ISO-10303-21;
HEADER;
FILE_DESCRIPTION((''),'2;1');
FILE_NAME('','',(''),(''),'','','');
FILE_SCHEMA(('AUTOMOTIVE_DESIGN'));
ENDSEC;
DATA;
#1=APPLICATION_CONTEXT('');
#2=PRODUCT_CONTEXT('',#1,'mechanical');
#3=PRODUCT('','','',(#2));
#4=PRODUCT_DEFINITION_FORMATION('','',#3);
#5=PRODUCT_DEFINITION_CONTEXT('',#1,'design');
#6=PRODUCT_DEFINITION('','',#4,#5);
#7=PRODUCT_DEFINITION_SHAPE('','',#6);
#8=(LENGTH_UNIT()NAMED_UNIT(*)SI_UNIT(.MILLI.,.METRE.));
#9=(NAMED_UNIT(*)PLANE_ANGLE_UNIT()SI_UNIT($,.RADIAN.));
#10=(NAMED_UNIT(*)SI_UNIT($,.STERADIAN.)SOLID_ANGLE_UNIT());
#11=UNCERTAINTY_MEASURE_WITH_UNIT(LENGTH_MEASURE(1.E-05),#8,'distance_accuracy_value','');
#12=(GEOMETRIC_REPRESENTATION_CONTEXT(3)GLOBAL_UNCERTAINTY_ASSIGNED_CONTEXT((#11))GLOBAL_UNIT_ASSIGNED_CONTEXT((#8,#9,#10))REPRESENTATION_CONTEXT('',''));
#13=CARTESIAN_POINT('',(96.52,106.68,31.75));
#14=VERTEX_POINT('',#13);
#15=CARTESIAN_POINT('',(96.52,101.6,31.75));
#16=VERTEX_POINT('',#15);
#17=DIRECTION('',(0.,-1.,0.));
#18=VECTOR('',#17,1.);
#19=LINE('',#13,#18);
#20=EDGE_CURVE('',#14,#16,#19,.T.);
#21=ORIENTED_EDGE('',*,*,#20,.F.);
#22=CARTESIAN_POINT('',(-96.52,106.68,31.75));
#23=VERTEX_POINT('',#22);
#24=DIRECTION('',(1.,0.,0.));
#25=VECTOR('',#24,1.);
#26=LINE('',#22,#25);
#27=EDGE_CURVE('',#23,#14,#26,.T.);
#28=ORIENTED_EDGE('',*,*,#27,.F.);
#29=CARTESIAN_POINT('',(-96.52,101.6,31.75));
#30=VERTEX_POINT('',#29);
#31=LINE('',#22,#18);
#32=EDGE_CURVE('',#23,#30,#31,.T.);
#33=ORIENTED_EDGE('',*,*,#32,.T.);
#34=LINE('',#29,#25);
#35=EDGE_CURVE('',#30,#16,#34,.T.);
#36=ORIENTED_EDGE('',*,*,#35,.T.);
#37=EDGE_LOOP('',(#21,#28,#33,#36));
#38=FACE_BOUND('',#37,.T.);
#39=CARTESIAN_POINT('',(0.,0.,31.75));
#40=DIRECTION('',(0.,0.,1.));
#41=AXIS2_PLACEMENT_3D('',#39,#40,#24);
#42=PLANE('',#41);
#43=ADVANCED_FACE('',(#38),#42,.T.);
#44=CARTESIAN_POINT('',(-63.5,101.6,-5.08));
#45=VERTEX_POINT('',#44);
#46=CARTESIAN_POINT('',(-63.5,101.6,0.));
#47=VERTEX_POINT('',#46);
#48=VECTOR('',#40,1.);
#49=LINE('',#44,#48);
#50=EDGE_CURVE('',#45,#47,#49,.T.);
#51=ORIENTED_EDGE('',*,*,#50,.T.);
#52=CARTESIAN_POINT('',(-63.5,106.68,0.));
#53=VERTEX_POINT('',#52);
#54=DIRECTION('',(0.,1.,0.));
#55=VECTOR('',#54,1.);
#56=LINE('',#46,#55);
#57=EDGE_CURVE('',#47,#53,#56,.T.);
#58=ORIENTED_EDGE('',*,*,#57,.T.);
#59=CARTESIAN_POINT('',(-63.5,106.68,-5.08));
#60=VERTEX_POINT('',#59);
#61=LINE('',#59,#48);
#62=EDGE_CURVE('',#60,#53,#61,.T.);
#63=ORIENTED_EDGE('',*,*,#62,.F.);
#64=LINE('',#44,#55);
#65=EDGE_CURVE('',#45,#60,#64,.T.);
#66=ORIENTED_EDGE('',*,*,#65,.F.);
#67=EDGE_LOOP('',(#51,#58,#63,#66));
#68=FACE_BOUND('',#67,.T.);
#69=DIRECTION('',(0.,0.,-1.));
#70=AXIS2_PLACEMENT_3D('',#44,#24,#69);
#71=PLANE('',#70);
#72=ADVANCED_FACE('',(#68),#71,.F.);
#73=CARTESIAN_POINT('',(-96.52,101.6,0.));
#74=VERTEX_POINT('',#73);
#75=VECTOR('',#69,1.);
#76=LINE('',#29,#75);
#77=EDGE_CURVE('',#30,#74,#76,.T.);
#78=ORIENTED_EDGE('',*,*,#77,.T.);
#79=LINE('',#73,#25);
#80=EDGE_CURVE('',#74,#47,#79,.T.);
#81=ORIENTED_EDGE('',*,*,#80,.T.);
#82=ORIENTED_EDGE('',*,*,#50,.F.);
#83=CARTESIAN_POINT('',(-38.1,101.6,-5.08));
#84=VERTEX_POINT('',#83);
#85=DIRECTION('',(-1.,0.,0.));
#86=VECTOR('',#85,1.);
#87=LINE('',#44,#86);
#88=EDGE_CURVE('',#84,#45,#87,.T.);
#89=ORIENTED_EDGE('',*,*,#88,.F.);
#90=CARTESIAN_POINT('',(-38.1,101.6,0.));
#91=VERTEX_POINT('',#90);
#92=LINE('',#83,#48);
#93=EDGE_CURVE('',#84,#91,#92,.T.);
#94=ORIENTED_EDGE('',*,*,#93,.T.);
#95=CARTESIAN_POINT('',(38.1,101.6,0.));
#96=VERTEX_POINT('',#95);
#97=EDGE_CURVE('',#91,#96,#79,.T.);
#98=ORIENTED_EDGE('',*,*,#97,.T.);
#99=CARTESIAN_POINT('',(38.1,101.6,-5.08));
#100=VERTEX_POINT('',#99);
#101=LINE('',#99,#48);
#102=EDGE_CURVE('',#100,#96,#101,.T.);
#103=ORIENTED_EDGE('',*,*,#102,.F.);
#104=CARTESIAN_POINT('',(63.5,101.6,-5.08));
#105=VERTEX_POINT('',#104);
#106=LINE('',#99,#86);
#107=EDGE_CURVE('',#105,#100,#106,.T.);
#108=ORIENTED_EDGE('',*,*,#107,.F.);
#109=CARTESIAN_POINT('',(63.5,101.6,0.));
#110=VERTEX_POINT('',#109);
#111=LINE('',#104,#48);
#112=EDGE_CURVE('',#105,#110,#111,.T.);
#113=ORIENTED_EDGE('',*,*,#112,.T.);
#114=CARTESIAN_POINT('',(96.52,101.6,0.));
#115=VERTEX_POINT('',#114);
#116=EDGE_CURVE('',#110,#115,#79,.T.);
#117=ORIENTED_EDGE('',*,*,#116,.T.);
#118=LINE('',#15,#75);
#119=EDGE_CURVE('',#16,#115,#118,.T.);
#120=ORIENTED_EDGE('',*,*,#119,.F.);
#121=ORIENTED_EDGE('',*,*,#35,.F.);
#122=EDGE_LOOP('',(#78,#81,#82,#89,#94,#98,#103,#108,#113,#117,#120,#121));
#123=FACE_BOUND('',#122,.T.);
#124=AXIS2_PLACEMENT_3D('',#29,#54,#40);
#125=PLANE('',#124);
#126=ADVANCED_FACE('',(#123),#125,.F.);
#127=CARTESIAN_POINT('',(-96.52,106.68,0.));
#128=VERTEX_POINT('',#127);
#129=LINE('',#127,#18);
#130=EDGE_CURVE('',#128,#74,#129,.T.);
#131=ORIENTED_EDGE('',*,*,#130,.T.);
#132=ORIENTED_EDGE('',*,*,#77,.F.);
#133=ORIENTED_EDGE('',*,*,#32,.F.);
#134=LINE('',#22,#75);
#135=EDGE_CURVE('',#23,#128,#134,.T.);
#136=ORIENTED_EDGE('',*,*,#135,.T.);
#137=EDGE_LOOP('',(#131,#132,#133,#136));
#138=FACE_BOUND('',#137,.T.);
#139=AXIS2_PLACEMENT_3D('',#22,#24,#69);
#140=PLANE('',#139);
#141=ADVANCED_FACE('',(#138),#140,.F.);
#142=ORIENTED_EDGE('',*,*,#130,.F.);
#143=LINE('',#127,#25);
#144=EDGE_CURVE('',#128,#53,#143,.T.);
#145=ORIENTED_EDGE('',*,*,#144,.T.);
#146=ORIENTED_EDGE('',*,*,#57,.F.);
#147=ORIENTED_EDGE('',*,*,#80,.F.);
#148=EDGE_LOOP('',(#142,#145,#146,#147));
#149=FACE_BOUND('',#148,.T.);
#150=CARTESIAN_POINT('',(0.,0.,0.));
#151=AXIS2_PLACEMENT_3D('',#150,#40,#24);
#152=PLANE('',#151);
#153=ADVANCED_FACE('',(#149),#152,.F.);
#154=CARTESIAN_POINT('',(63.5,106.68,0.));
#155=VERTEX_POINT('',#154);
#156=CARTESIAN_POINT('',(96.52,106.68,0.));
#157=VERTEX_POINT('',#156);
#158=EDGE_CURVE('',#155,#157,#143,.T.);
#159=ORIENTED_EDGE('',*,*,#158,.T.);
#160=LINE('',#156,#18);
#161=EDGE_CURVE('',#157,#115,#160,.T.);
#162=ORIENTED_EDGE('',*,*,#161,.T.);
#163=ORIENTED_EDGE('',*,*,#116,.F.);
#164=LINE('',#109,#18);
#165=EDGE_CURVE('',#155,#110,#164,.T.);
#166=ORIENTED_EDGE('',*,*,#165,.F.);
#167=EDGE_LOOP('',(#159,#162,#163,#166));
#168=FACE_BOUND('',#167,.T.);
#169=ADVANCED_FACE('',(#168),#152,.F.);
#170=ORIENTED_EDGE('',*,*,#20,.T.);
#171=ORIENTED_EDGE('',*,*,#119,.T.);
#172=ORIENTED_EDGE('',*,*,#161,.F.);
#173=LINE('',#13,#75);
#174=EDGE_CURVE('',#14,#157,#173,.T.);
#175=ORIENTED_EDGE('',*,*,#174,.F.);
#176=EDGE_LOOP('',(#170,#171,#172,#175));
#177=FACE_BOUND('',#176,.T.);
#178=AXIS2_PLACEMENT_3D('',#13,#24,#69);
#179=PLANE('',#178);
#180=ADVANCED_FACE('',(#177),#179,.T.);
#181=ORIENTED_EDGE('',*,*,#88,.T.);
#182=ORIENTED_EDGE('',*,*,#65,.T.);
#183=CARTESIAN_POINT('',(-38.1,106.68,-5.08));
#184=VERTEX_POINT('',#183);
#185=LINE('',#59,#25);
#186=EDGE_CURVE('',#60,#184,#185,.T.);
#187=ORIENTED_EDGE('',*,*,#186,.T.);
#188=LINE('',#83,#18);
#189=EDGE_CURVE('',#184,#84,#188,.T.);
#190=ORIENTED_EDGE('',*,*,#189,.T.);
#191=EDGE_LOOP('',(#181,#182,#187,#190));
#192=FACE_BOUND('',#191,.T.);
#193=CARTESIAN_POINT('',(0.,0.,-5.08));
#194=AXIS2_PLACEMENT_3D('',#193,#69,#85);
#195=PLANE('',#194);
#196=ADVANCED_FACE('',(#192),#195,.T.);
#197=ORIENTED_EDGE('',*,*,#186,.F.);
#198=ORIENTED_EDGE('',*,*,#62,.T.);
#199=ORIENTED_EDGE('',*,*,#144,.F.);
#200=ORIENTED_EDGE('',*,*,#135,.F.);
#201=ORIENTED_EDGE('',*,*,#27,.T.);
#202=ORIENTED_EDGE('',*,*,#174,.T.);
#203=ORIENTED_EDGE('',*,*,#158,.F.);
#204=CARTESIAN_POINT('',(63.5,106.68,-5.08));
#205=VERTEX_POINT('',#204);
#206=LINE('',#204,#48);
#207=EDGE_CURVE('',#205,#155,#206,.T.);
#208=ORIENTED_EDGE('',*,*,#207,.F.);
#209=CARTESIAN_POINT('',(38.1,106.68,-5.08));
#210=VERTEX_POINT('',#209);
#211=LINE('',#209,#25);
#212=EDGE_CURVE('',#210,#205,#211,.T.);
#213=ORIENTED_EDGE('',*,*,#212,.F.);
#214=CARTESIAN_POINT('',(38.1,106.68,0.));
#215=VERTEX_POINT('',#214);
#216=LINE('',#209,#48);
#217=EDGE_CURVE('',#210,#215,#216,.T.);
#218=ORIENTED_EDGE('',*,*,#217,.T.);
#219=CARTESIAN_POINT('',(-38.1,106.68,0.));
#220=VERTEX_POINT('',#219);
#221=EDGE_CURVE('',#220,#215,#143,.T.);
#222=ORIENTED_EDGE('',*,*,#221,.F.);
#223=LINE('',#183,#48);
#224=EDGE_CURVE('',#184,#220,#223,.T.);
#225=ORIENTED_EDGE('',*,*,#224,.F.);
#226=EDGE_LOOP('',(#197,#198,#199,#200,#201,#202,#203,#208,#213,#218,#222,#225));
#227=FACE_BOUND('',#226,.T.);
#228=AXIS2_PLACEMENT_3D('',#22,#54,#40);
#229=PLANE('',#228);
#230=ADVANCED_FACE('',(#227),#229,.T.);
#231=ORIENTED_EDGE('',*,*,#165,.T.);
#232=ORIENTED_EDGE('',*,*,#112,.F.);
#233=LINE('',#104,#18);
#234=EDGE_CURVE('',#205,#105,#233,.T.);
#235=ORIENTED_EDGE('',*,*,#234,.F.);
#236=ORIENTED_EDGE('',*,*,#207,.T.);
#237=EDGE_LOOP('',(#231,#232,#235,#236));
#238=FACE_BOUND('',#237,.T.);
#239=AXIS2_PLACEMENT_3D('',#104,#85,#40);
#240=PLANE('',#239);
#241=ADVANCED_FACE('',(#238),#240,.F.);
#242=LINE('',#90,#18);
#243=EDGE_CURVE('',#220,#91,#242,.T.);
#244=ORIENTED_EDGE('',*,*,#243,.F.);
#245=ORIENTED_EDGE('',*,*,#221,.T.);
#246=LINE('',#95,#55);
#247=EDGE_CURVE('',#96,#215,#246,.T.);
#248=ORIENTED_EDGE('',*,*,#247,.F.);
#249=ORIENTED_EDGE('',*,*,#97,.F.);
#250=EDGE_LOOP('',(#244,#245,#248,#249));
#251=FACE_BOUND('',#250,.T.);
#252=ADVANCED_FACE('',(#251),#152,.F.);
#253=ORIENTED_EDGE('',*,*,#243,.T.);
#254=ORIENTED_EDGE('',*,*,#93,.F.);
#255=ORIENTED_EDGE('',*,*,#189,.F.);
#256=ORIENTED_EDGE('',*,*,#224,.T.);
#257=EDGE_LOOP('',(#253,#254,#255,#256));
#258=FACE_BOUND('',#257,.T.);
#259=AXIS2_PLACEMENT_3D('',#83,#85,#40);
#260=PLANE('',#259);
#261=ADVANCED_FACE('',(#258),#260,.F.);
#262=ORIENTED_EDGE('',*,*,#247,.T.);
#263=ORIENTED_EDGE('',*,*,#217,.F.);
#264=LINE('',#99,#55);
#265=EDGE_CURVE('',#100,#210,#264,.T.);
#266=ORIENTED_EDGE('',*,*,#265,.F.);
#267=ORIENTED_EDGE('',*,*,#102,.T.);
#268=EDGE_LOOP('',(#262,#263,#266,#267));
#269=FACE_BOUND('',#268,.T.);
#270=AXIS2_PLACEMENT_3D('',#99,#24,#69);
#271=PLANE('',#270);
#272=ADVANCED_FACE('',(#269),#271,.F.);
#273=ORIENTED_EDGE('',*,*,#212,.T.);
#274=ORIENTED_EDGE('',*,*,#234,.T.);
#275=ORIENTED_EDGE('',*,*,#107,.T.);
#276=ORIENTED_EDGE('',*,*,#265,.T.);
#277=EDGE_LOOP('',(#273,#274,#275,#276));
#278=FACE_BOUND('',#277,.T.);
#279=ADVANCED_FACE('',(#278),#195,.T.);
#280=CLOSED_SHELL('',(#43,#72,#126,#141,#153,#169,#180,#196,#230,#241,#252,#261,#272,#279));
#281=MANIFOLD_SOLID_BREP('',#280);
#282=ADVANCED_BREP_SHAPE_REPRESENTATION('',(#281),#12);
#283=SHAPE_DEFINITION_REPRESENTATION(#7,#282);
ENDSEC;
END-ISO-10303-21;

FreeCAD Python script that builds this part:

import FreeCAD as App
import Part
import Sketcher

V = App.Vector
Q = App.Units.Quantity

doc = App.newDocument("Part")
params = doc.addObject("Spreadsheet::Sheet", "Params")
for row, (alias, value) in enumerate([
    ("sketch1_width", "7.6 in"),
    ("sketch1_height", "0.2 in"),
    ("pad1_length", "1.25 in"),
    ("sketch2_width", "1 in"),
    ("sketch2_height", "0.2 in"),
    ("pad2_length", "0.2 in"),
], start=1):
    params.set(f"A{row}", alias)
    params.set(f"B{row}", "=" + value)
    params.setAlias(f"B{row}", alias)

body = doc.addObject("PartDesign::Body", "Body")

# Sketch on XY plane
sketch1 = doc.addObject("Sketcher::SketchObject", "Sketch")
body.addObject(sketch1)
sketch1.AttachmentSupport = (doc.XY_Plane, [""])
sketch1.MapMode = "FlatFace"
sketch1.addGeometry([
    Part.LineSegment(V(-96.52, 106.68, 0), V(-96.52, 101.6, 0)),
    Part.LineSegment(V(-96.52, 101.6, 0), V(96.52, 101.6, 0)),
    Part.LineSegment(V(96.52, 101.6, 0), V(96.52, 106.68, 0)),
    Part.LineSegment(V(96.52, 106.68, 0), V(-96.52, 106.68, 0)),
], False)
sketch1.addConstraint([
    Sketcher.Constraint("Coincident", 0, 2, 1, 1),
    Sketcher.Constraint("Coincident", 1, 2, 2, 1),
    Sketcher.Constraint("Coincident", 2, 2, 3, 1),
    Sketcher.Constraint("Coincident", 3, 2, 0, 1),
    Sketcher.Constraint("Vertical", 0),
    Sketcher.Constraint("Horizontal", 1),
    Sketcher.Constraint("Vertical", 2),
    Sketcher.Constraint("Horizontal", 3),
    Sketcher.Constraint("DistanceX", 1, 1, 1, 2, Q("7.6 in")),
    Sketcher.Constraint("DistanceY", 0, 2, 0, 1, Q("0.2 in")),
    Sketcher.Constraint("DistanceY", -1, 1, 0, 2, Q("4 in")),
    Sketcher.Constraint("DistanceX", 0, 2, -1, 1, Q("3.8 in")),
])
sketch1.setExpression("Constraints[8]", "Params.sketch1_width")
sketch1.setExpression("Constraints[9]", "Params.sketch1_height")
pad1 = doc.addObject("PartDesign::Pad", "Pad")
body.addObject(pad1)
pad1.Profile = sketch1
pad1.setExpression("Length", "Params.pad1_length")

# Sketch on XY plane
sketch2 = doc.addObject("Sketcher::SketchObject", "Sketch001")
body.addObject(sketch2)
sketch2.AttachmentSupport = (doc.XY_Plane, [""])
sketch2.MapMode = "FlatFace"
sketch2.addGeometry([
    Part.LineSegment(V(-38.1, 106.68, 0), V(-38.1, 101.6, 0)),  # 0
    Part.LineSegment(V(-38.1, 101.6, 0), V(-63.5, 101.6, 0)),  # 1
    Part.LineSegment(V(-63.5, 101.6, 0), V(-63.5, 106.68, 0)),  # 2
    Part.LineSegment(V(-63.5, 106.68, 0), V(-38.1, 106.68, 0)),  # 3
    Part.LineSegment(V(63.5, 106.68, 0), V(63.5, 101.6, 0)),  # 4
    Part.LineSegment(V(63.5, 101.6, 0), V(38.1, 101.6, 0)),  # 5
    Part.LineSegment(V(38.1, 101.6, 0), V(38.1, 106.68, 0)),  # 6
    Part.LineSegment(V(38.1, 106.68, 0), V(63.5, 106.68, 0)),  # 7
], False)
sketch2.addConstraint([
    Sketcher.Constraint("Coincident", 0, 2, 1, 1),
    Sketcher.Constraint("Coincident", 1, 2, 2, 1),
    Sketcher.Constraint("Coincident", 2, 2, 3, 1),
    Sketcher.Constraint("Coincident", 3, 2, 0, 1),
    Sketcher.Constraint("Coincident", 4, 2, 5, 1),
    Sketcher.Constraint("Coincident", 5, 2, 6, 1),
    Sketcher.Constraint("Coincident", 6, 2, 7, 1),
    Sketcher.Constraint("Coincident", 7, 2, 4, 1),
    Sketcher.Constraint("Vertical", 0),
    Sketcher.Constraint("Horizontal", 1),
    Sketcher.Constraint("Vertical", 2),
    Sketcher.Constraint("Horizontal", 3),
    Sketcher.Constraint("Vertical", 4),
    Sketcher.Constraint("Horizontal", 5),
    Sketcher.Constraint("Vertical", 6),
    Sketcher.Constraint("Horizontal", 7),
    Sketcher.Constraint("Symmetric", 1, 2, 4, 2, -2),
    Sketcher.Constraint("Symmetric", 3, 2, 6, 2, -2),
    Sketcher.Constraint("DistanceX", 1, 2, 1, 1, Q("1 in")),
    Sketcher.Constraint("DistanceY", 0, 2, 0, 1, Q("0.2 in")),
    Sketcher.Constraint("DistanceY", -1, 1, 0, 2, Q("4 in")),
    Sketcher.Constraint("DistanceX", 0, 2, 4, 2, Q("4 in")),
])
sketch2.setExpression("Constraints[18]", "Params.sketch2_width")
sketch2.setExpression("Constraints[19]", "Params.sketch2_height")
pad2 = doc.addObject("PartDesign::Pad", "Pad001")
body.addObject(pad2)
pad2.Profile = sketch2
pad2.setExpression("Length", "Params.pad2_length")
pad2.Reversed = True

doc.recompute()
